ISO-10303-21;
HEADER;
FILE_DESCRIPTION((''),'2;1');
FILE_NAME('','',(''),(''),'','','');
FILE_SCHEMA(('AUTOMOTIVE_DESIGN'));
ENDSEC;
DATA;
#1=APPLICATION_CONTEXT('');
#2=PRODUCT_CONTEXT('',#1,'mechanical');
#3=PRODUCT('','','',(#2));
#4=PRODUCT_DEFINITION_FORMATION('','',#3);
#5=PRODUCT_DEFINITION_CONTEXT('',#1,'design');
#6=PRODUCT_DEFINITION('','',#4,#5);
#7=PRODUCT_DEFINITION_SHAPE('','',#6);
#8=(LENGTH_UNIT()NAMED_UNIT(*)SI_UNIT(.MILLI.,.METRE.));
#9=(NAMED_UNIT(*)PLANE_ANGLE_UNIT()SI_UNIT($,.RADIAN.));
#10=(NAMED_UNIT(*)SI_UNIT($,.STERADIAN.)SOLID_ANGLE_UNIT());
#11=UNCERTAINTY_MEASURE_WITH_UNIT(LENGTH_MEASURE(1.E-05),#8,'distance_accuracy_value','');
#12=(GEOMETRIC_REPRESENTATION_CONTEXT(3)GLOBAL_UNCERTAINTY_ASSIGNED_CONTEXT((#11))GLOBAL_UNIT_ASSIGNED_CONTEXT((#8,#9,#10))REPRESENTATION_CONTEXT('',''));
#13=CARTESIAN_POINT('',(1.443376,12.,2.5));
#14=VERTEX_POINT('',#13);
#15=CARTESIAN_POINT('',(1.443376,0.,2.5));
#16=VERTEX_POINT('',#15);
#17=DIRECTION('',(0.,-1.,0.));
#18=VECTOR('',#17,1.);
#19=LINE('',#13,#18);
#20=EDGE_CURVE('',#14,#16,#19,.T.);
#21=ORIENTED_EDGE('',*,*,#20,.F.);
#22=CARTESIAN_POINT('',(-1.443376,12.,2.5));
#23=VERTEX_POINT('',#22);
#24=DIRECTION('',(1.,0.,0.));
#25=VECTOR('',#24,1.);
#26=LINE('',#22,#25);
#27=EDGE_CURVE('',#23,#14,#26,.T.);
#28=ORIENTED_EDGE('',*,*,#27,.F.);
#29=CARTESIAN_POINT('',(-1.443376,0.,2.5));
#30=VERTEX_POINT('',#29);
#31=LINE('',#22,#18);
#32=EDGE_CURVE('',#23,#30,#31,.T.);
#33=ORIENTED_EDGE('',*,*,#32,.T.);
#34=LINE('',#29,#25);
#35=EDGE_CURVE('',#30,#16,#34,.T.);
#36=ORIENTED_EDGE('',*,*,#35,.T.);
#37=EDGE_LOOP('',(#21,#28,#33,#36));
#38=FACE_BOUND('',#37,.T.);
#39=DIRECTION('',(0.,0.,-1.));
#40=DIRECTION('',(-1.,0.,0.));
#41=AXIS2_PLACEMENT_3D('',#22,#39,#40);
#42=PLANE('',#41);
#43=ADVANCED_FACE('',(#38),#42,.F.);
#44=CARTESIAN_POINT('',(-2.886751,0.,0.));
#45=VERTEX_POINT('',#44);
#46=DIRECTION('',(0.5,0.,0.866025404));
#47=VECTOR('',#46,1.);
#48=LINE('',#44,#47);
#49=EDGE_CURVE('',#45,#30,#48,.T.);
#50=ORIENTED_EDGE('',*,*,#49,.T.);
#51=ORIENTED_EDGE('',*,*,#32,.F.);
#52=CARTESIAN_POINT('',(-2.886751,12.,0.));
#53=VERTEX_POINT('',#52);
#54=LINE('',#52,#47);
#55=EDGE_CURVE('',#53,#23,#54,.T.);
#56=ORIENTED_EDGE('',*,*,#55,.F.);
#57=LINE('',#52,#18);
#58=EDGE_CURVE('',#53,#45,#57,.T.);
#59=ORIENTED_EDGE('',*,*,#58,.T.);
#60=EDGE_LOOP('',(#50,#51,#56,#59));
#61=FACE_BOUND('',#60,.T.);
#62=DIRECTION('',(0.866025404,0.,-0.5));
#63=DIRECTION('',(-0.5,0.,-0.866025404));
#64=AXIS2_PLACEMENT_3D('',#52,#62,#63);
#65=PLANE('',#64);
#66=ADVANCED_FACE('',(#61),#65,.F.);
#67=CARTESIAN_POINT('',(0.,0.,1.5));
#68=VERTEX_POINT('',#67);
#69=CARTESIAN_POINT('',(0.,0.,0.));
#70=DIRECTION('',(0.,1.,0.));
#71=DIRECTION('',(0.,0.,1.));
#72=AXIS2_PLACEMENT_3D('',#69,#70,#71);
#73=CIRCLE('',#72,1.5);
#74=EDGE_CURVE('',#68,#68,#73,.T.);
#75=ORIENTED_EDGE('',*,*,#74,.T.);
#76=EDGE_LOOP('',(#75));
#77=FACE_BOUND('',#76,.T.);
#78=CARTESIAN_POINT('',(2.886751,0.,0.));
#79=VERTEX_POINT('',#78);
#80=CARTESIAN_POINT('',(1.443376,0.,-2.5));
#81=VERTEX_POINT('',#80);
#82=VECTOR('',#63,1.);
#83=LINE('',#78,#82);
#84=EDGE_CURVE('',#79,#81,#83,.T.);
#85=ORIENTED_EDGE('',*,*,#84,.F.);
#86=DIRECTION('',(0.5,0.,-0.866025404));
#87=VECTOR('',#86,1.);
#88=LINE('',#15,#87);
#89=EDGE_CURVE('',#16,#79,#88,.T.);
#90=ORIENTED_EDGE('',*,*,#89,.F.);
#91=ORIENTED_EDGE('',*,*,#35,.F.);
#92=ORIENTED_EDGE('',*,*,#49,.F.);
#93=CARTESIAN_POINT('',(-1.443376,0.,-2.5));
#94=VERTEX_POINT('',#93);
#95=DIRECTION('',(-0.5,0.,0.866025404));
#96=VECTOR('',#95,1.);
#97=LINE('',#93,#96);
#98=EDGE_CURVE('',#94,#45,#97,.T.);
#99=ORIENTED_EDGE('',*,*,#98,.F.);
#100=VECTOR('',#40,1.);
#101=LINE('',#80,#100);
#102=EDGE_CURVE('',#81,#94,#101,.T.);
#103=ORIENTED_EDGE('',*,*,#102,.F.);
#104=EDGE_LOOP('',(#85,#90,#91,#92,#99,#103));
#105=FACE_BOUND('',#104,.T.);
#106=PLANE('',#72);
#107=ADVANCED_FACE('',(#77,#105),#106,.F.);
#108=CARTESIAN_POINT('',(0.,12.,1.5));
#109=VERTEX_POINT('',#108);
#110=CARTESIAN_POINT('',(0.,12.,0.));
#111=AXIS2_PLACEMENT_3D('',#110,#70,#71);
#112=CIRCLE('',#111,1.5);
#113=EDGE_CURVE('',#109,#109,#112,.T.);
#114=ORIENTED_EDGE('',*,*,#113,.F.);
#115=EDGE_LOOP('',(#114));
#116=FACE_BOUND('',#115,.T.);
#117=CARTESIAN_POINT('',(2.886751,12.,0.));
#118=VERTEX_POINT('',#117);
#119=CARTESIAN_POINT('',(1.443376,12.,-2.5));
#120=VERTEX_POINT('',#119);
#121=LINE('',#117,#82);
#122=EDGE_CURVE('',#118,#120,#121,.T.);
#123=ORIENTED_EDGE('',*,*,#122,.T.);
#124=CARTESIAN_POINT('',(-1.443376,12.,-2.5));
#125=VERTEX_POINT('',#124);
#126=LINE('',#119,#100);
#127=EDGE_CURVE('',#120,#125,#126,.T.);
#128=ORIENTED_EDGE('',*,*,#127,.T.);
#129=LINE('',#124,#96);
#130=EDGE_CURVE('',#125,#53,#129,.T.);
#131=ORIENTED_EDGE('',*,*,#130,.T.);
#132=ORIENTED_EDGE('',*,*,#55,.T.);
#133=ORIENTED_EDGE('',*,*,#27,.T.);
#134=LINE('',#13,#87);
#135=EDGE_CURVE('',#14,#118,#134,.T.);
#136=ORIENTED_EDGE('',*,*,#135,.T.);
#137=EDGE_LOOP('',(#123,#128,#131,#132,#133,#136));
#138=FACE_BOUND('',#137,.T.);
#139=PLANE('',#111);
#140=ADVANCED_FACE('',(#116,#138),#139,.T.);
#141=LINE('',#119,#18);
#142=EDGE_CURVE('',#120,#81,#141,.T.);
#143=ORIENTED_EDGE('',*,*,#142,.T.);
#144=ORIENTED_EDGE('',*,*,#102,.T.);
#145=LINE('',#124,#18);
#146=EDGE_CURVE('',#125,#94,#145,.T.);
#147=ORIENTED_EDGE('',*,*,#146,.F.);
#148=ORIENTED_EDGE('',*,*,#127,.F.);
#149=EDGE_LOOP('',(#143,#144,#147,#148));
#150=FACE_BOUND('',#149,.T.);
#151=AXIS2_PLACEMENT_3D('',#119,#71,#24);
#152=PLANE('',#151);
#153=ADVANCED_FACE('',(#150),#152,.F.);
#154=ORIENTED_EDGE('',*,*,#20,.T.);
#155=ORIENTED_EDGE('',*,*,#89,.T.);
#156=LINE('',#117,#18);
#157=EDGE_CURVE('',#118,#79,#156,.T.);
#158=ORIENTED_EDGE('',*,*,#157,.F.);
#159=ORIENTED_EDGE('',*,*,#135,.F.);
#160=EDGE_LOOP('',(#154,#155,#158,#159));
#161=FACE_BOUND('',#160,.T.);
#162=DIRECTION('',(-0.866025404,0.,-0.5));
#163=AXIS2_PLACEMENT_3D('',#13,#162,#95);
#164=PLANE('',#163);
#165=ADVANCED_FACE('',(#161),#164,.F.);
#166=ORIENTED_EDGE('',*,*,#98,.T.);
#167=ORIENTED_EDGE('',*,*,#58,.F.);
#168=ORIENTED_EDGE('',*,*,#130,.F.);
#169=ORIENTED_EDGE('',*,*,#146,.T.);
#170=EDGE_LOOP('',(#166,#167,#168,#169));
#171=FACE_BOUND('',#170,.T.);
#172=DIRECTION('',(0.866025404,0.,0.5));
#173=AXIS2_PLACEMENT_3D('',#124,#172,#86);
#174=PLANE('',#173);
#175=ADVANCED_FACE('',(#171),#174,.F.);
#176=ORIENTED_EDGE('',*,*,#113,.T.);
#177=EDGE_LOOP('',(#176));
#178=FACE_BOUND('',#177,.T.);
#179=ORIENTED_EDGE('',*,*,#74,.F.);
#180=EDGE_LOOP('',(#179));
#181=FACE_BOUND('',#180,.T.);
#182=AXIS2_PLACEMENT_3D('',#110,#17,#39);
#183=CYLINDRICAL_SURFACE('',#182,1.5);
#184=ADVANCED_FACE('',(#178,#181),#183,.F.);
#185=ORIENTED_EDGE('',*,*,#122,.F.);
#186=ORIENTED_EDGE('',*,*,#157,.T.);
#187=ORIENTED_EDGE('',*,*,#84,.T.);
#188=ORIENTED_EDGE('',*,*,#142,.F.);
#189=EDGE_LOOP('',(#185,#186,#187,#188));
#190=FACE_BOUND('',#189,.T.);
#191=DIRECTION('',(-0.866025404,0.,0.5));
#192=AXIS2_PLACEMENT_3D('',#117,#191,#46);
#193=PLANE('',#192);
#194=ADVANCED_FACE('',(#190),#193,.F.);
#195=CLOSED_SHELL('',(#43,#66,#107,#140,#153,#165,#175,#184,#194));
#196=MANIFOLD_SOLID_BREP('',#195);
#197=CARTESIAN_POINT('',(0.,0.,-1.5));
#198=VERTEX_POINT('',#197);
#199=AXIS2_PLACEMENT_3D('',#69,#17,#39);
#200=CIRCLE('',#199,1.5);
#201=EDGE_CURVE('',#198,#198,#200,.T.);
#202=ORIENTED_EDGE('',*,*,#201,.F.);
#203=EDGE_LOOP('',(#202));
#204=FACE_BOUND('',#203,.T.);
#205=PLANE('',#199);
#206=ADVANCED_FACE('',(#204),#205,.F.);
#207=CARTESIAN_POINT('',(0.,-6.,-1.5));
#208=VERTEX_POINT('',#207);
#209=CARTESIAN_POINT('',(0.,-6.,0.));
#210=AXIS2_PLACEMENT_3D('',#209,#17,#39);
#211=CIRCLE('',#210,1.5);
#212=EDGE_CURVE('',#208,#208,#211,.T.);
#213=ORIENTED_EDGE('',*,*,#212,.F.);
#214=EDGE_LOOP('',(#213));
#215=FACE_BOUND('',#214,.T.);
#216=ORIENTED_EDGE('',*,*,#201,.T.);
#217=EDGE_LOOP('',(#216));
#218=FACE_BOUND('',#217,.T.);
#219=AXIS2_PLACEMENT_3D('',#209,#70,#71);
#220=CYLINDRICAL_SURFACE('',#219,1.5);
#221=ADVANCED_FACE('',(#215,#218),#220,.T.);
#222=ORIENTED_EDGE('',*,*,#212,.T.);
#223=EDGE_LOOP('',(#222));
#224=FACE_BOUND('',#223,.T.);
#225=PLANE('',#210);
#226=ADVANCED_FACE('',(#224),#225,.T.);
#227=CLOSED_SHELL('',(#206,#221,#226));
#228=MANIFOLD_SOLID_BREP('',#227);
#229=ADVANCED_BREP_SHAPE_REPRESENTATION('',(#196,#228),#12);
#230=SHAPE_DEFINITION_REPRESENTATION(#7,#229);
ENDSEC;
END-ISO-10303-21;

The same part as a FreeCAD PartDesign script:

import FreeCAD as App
import Part
import Sketcher

V = App.Vector
Q = App.Units.Quantity


def add_polygon(sketch, points):
    """Adds a closed chain of lines whose ends are joined by coincident constraints."""
    first, n = sketch.GeometryCount, len(points)
    for a, b in zip(points, points[1:] + points[:1]):
        sketch.addGeometry(Part.LineSegment(App.Vector(*a, 0), App.Vector(*b, 0)), False)
    for i in range(n):
        sketch.addConstraint(Sketcher.Constraint("Coincident", first + i, 2, first + (i + 1) % n, 1))

doc = App.newDocument("Part")
body = doc.addObject("PartDesign::Body", "Body")

sketch1 = body.newObject("Sketcher::SketchObject", "Sketch")
sketch1.AttachmentSupport = (doc.getObject("XZ_Plane"), [""])
sketch1.MapMode = "FlatFace"
add_polygon(sketch1, [(1.4, 2.5), (2.9, 0), (1.4, -2.5), (-1.4, -2.5), (-2.9, 0), (-1.4, 2.5)])
sketch1.addGeometry(Part.Circle(V(0, 0, 0), V(0, 0, 1), 1.5), False)
sketch1.addConstraint([
    Sketcher.Constraint("Horizontal", 2),
    Sketcher.Constraint("Horizontal", 5),
    Sketcher.Constraint("Coincident", 6, 3, -1, 1),
    Sketcher.Constraint("Symmetric", 0, 2, 3, 2, -1, 1),
    Sketcher.Constraint("Symmetric", 1, 2, 4, 2, -1, 1),
    Sketcher.Constraint("PointOnObject", 0, 2, -1),
    Sketcher.Constraint("Parallel", 0, 3),
    Sketcher.Constraint("Vertical", 2, 2, 4, 2),
    Sketcher.Constraint("Diameter", 6, Q("3 mm")),
    Sketcher.Constraint("Angle", 0, Q("-60 deg")),
    Sketcher.Constraint("DistanceY", 2, 2, 4, 2, Q("5 mm")),
    Sketcher.Constraint("DistanceX", 2, 2, 2, 1, Q("2.886751 mm")),
])
pad1 = body.newObject("PartDesign::Pad", "Pad")
pad1.Profile = sketch1
pad1.Length = 12
pad1.Reversed = True
body2 = doc.addObject("PartDesign::Body", "Body001")

sketch2 = body2.newObject("Sketcher::SketchObject", "Sketch001")
sketch2.AttachmentSupport = (doc.getObject("XZ_Plane001"), [""])
sketch2.MapMode = "FlatFace"
sketch2.addGeometry(Part.Circle(V(0, 0, 0), V(0, 0, 1), 1.5), False)
sketch2.addConstraint([
    Sketcher.Constraint("Coincident", 0, 3, -1, 1),
    Sketcher.Constraint("Diameter", 0, Q("3 mm")),
])
pad2 = body2.newObject("PartDesign::Pad", "Pad001")
pad2.Profile = sketch2
pad2.Length = 6

doc.recompute()
